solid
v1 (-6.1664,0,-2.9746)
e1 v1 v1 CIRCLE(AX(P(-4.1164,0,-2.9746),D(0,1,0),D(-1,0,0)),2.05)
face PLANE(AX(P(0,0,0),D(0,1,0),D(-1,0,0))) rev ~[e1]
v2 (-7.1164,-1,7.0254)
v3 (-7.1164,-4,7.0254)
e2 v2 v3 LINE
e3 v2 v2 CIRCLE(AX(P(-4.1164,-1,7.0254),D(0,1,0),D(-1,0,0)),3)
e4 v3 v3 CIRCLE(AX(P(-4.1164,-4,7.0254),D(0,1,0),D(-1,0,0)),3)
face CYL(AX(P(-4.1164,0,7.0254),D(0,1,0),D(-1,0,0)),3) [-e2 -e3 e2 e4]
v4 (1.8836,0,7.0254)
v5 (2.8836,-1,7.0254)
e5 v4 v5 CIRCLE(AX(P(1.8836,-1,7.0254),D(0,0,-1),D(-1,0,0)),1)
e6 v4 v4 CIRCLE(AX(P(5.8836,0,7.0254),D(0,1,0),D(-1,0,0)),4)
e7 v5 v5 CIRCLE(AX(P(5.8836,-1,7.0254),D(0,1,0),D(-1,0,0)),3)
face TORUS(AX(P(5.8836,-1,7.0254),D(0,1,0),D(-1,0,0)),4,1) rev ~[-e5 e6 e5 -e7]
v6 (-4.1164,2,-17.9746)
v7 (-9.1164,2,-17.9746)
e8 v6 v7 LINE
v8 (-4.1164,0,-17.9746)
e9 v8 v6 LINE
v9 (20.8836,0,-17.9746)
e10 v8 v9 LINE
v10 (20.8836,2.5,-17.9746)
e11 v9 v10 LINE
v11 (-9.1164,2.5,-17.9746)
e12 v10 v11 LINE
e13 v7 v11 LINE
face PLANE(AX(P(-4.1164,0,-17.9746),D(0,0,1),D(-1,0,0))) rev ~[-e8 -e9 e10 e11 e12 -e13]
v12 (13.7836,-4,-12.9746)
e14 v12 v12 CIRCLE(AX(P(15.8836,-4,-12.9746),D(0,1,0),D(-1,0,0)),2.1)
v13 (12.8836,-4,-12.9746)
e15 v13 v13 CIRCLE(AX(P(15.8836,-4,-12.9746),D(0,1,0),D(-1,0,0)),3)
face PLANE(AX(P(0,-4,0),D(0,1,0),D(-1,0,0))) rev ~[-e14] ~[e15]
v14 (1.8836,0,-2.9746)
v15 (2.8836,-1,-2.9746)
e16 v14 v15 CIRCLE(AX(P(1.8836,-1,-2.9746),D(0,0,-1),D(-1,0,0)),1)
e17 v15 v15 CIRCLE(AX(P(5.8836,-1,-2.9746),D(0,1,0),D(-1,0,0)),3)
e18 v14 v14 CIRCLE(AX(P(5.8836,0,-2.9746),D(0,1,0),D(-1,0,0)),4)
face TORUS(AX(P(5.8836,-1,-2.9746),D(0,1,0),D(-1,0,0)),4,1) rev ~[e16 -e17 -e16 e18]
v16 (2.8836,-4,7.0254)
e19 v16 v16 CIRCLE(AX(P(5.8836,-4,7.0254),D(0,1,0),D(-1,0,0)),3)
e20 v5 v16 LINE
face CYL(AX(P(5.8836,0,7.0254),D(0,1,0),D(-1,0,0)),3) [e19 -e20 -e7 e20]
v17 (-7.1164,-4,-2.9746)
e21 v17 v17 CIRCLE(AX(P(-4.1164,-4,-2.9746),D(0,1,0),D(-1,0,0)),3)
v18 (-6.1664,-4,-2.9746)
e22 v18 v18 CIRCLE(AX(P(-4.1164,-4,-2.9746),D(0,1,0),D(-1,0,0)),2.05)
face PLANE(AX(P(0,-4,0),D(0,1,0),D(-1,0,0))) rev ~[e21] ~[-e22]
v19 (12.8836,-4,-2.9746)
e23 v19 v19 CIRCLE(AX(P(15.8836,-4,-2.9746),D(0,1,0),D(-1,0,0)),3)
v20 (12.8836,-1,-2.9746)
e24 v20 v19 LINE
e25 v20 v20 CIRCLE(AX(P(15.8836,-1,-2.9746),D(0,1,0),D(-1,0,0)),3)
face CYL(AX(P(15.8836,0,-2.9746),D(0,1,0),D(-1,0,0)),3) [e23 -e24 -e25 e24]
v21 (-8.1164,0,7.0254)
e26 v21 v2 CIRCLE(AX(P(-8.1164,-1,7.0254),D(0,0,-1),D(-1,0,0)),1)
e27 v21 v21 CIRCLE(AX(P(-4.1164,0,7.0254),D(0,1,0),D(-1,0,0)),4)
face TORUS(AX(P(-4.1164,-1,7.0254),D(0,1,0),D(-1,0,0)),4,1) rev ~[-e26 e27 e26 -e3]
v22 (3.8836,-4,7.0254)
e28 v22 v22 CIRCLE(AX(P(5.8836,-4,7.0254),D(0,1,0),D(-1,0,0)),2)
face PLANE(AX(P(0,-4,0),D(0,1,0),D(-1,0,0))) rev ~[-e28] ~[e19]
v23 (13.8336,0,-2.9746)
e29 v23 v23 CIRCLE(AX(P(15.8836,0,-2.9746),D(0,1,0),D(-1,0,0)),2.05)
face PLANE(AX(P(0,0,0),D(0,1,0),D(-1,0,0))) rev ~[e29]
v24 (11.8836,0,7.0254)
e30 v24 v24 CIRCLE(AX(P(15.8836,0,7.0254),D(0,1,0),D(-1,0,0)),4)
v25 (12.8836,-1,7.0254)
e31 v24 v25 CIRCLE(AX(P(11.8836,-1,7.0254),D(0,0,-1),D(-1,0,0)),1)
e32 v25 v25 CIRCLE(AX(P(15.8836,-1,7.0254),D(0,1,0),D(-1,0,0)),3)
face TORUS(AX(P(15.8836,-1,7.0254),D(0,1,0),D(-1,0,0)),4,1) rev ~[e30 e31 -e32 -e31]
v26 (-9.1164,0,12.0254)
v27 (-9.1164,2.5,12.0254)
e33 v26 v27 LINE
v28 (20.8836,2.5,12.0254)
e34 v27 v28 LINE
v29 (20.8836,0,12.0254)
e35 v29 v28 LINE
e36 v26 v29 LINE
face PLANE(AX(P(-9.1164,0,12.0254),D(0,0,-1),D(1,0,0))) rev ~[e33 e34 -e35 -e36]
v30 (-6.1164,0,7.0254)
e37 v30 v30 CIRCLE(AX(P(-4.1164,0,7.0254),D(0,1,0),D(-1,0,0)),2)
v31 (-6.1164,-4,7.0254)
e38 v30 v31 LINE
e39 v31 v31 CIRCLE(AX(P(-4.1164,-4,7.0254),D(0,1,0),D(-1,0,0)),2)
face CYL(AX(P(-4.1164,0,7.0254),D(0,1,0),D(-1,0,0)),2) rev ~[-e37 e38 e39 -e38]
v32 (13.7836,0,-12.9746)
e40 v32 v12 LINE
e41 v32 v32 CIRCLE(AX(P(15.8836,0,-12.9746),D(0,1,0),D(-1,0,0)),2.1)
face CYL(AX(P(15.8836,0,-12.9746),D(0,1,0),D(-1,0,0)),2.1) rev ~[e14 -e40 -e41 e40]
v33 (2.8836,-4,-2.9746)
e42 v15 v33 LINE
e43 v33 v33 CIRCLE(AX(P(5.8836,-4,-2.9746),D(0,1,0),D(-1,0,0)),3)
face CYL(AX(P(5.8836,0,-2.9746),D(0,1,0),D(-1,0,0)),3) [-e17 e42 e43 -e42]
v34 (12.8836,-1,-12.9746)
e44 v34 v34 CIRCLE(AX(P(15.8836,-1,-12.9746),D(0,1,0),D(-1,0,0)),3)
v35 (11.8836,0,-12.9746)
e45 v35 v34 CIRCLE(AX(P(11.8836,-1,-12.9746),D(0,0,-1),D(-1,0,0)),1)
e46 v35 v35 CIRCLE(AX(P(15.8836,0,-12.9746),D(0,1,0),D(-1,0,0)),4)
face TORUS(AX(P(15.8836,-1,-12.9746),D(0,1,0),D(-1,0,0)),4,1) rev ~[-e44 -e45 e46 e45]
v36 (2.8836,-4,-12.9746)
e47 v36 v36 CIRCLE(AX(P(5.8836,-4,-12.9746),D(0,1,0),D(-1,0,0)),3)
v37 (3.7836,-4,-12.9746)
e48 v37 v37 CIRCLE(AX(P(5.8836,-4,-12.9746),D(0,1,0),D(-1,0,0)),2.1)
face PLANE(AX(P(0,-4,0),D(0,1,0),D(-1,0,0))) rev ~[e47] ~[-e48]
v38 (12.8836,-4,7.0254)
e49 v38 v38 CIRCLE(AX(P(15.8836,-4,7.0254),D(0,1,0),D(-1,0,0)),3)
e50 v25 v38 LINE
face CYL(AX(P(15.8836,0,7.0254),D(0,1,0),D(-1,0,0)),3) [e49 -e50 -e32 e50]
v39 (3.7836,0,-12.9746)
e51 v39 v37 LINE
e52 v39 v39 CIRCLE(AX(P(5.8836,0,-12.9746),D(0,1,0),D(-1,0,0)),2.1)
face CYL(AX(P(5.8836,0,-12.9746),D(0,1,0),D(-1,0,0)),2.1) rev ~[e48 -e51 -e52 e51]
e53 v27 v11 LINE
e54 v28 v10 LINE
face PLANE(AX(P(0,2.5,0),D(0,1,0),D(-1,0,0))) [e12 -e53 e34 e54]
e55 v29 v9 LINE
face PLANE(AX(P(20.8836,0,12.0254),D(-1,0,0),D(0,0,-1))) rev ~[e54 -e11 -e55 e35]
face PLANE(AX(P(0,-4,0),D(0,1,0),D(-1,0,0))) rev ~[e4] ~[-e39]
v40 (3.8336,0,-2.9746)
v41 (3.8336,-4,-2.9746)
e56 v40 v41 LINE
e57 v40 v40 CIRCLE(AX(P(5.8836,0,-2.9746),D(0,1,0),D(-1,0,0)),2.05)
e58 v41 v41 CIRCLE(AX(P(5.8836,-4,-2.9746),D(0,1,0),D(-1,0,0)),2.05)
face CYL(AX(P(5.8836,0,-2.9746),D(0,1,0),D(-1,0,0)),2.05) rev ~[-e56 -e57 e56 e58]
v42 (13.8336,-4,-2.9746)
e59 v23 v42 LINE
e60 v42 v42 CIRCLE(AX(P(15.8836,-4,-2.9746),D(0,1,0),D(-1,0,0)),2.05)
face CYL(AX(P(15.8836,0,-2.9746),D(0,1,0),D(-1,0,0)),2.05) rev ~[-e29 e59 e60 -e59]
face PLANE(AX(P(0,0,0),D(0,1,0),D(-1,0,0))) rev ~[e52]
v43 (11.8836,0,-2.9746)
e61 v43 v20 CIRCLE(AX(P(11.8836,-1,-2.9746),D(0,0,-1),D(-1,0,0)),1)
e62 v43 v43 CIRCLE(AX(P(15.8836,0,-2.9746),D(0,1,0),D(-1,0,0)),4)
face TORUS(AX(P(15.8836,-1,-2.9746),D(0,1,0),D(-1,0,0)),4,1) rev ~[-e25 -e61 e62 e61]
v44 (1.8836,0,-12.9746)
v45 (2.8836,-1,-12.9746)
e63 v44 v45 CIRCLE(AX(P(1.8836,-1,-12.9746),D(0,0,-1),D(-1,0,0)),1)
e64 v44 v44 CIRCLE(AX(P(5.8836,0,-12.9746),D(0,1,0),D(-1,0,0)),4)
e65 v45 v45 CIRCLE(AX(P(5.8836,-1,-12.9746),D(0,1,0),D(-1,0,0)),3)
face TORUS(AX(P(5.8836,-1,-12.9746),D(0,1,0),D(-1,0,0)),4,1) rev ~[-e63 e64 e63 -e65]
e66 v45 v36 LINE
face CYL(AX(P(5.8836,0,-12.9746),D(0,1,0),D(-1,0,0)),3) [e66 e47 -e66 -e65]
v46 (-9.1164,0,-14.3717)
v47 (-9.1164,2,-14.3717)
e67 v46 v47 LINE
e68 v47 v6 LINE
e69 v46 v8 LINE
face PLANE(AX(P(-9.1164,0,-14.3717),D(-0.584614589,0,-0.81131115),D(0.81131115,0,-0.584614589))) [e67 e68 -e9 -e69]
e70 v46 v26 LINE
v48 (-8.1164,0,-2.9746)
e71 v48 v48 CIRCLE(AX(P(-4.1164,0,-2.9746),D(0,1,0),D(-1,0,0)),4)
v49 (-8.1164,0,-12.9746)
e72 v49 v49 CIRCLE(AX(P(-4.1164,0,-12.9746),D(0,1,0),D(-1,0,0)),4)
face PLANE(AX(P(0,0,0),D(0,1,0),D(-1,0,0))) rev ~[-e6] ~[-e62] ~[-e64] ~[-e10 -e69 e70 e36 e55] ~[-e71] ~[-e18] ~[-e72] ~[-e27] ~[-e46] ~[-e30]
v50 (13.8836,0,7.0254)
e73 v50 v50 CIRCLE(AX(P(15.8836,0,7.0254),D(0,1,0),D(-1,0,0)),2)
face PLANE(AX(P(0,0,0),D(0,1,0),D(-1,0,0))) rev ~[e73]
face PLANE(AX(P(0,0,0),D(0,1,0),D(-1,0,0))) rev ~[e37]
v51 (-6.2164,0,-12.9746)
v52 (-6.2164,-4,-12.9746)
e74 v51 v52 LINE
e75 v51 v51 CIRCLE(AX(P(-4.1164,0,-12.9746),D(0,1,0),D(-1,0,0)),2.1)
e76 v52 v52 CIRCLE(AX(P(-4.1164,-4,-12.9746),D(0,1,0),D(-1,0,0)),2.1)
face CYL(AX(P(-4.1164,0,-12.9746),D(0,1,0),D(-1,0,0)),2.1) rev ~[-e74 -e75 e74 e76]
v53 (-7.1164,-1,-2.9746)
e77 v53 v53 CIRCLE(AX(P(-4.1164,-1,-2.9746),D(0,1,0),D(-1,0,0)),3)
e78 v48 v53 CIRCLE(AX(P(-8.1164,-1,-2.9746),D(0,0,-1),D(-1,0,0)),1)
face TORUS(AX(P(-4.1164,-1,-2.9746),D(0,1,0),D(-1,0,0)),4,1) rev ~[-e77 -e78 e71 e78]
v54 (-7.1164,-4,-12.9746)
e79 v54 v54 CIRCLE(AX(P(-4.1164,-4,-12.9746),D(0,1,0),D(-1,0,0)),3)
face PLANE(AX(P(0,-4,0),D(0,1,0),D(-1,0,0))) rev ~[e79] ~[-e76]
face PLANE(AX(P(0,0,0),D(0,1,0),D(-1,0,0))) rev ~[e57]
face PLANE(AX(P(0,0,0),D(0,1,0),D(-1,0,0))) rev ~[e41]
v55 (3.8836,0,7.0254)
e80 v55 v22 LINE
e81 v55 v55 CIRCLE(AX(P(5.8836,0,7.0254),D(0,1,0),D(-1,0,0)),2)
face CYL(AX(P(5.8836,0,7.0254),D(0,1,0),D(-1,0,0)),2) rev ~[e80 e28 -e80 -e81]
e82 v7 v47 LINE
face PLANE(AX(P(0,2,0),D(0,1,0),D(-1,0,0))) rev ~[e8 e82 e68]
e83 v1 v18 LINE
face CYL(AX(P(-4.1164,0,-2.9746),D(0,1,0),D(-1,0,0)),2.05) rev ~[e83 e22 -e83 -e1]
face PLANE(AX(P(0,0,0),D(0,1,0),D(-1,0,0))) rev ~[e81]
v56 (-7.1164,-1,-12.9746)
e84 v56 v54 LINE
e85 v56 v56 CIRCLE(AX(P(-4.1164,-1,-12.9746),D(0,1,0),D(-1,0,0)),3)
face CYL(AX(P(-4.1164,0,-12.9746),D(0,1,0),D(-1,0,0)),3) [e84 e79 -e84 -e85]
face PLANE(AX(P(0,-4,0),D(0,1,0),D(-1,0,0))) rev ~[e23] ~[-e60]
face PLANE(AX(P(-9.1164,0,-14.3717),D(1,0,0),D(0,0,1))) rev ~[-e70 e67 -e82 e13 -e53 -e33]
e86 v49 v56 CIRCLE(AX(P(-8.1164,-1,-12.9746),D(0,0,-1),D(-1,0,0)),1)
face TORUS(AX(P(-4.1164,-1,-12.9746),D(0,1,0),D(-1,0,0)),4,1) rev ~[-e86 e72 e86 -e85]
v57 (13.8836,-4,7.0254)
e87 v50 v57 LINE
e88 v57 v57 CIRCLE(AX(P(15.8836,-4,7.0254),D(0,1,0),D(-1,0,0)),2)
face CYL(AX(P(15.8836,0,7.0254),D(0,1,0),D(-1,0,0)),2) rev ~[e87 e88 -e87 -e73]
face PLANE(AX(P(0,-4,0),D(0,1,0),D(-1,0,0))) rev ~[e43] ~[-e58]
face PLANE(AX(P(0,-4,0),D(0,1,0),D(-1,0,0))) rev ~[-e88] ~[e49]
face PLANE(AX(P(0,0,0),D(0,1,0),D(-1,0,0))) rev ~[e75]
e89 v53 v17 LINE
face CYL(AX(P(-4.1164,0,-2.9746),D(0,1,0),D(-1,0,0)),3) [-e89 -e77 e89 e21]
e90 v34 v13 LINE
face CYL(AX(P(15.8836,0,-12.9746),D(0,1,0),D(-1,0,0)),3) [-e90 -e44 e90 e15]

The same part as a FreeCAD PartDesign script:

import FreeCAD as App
import Part
import Sketcher
from FreeCAD import Vector
Q = App.Units.Quantity


def edges_at(feature, points):
    """Names of the edges that pass closest to the given points."""
    edges = feature.Shape.Edges
    near = lambda p: min(range(len(edges)), key=lambda i: edges[i].distToShape(Part.Vertex(*p))[0])
    return sorted({f"Edge{near(p) + 1}" for p in points})

doc = App.newDocument("Part")
body = doc.addObject("PartDesign::Body", "Body")

# Sketch on XZ plane
sketch1 = doc.addObject("Sketcher::SketchObject", "Sketch")
body.addObject(sketch1)
sketch1.AttachmentSupport = (doc.XZ_Plane, [""])
sketch1.MapMode = "FlatFace"
sketch1.addGeometry([
    Part.LineSegment(Vector(-9, 12, 0), Vector(21, 12, 0)),
    Part.LineSegment(Vector(21, 12, 0), Vector(21, -18, 0)),
    Part.LineSegment(Vector(21, -18, 0), Vector(-9, -18, 0)),
    Part.LineSegment(Vector(-9, -18, 0), Vector(-9, 12, 0)),
], False)
sketch1.addConstraint([
    Sketcher.Constraint("Coincident", 0, 2, 1, 1),
    Sketcher.Constraint("Coincident", 1, 2, 2, 1),
    Sketcher.Constraint("Coincident", 2, 2, 3, 1),
    Sketcher.Constraint("Coincident", 3, 2, 0, 1),
    Sketcher.Constraint("Horizontal", 0),
    Sketcher.Constraint("Vertical", 1),
    Sketcher.Constraint("Horizontal", 2),
    Sketcher.Constraint("Vertical", 3),
    Sketcher.Constraint("Equal", 2, 1),
    Sketcher.Constraint("DistanceX", 0, 1, 0, 2, Q("30 mm")),
    Sketcher.Constraint("DistanceX", -1, 1, 0, 2, Q("20.8836 mm")),
    Sketcher.Constraint("DistanceY", -1, 1, 0, 2, Q("12.0254 mm")),
])
pad1 = doc.addObject("PartDesign::Pad", "Pad")
body.addObject(pad1)
pad1.Profile = sketch1
pad1.Length = 2.5
pad1.Reversed = True

# Sketch on XZ plane
sketch2 = doc.addObject("Sketcher::SketchObject", "Sketch001")
body.addObject(sketch2)
sketch2.AttachmentSupport = (doc.XZ_Plane, [""])
sketch2.MapMode = "FlatFace"
sketch2.addGeometry([
    Part.Circle(Vector(-4.1, 7, 0), Vector(0, 0, 1), 3),  # 0
    Part.Circle(Vector(-4.1, 7, 0), Vector(0, 0, 1), 2),  # 1
    Part.Circle(Vector(-4.1, -3, 0), Vector(0, 0, 1), 3),  # 2
    Part.Circle(Vector(-4.1, -3, 0), Vector(0, 0, 1), 2),  # 3
    Part.Circle(Vector(-4.1, -13, 0), Vector(0, 0, 1), 3),  # 4
    Part.Circle(Vector(-4.1, -13, 0), Vector(0, 0, 1), 2.1),  # 5
    Part.Circle(Vector(5.9, 7, 0), Vector(0, 0, 1), 3),  # 6
    Part.Circle(Vector(5.9, 7, 0), Vector(0, 0, 1), 2),  # 7
    Part.Circle(Vector(5.9, -3, 0), Vector(0, 0, 1), 3),  # 8
    Part.Circle(Vector(5.9, -3, 0), Vector(0, 0, 1), 2),  # 9
    Part.Circle(Vector(5.9, -13, 0), Vector(0, 0, 1), 3),  # 10
    Part.Circle(Vector(5.9, -13, 0), Vector(0, 0, 1), 2.1),  # 11
    Part.Circle(Vector(15.9, 7, 0), Vector(0, 0, 1), 3),  # 12
    Part.Circle(Vector(15.9, 7, 0), Vector(0, 0, 1), 2),  # 13
    Part.Circle(Vector(15.9, -3, 0), Vector(0, 0, 1), 3),  # 14
    Part.Circle(Vector(15.9, -3, 0), Vector(0, 0, 1), 2),  # 15
    Part.Circle(Vector(15.9, -13, 0), Vector(0, 0, 1), 3),  # 16
    Part.Circle(Vector(15.9, -13, 0), Vector(0, 0, 1), 2.1),  # 17
], False)
sketch2.addConstraint([
    Sketcher.Constraint("Coincident", 1, 3, 0, 3),
    Sketcher.Constraint("Coincident", 3, 3, 2, 3),
    Sketcher.Constraint("Coincident", 5, 3, 4, 3),
    Sketcher.Constraint("Coincident", 7, 3, 6, 3),
    Sketcher.Constraint("Coincident", 9, 3, 8, 3),
    Sketcher.Constraint("Coincident", 11, 3, 10, 3),
    Sketcher.Constraint("Coincident", 13, 3, 12, 3),
    Sketcher.Constraint("Coincident", 15, 3, 14, 3),
    Sketcher.Constraint("Coincident", 17, 3, 16, 3),
    Sketcher.Constraint("Equal", 0, 2),
    Sketcher.Constraint("Equal", 2, 4),
    Sketcher.Constraint("Equal", 4, 6),
    Sketcher.Constraint("Equal", 1, 7),
    Sketcher.Constraint("Equal", 6, 8),
    Sketcher.Constraint("Equal", 3, 9),
    Sketcher.Constraint("Equal", 8, 10),
    Sketcher.Constraint("Equal", 5, 11),
    Sketcher.Constraint("Equal", 10, 12),
    Sketcher.Constraint("Equal", 7, 13),
    Sketcher.Constraint("Equal", 12, 14),
    Sketcher.Constraint("Equal", 9, 15),
    Sketcher.Constraint("Equal", 14, 16),
    Sketcher.Constraint("Equal", 11, 17),
    Sketcher.Constraint("Horizontal", 1, 3, 6, 3),
    Sketcher.Constraint("Horizontal", 3, 3, 8, 3),
    Sketcher.Constraint("Horizontal", 5, 3, 10, 3),
    Sketcher.Constraint("Horizontal", 7, 3, 12, 3),
    Sketcher.Constraint("Horizontal", 9, 3, 14, 3),
    Sketcher.Constraint("Horizontal", 11, 3, 16, 3),
    Sketcher.Constraint("Vertical", 1, 3, 2, 3),
    Sketcher.Constraint("Vertical", 3, 3, 4, 3),
    Sketcher.Constraint("Vertical", 7, 3, 8, 3),
    Sketcher.Constraint("Vertical", 9, 3, 10, 3),
    Sketcher.Constraint("Vertical", 13, 3, 14, 3),
    Sketcher.Constraint("Vertical", 15, 3, 16, 3),
    Sketcher.Constraint("Diameter", 0, Q("6 mm")),
    Sketcher.Constraint("Diameter", 1, Q("4 mm")),
    Sketcher.Constraint("Diameter", 3, Q("4.1 mm")),
    Sketcher.Constraint("Diameter", 5, Q("4.2 mm")),
    Sketcher.Constraint("DistanceY", 2, 3, 0, 3, Q("10 mm")),
    Sketcher.Constraint("DistanceY", 4, 3, 2, 3, Q("10 mm")),
    Sketcher.Constraint("DistanceX", 0, 3, 6, 3, Q("10 mm")),
    Sketcher.Constraint("DistanceX", 6, 3, 12, 3, Q("10 mm")),
    Sketcher.Constraint("DistanceX", 0, 3, -1, 1, Q("4.1164 mm")),
    Sketcher.Constraint("DistanceY", -1, 1, 0, 3, Q("7.0254 mm")),
])
pad2 = doc.addObject("PartDesign::Pad", "Pad001")
body.addObject(pad2)
pad2.Profile = sketch2
pad2.Length = 4
doc.recompute()

fillet = doc.addObject("PartDesign::Fillet", "Fillet")
body.addObject(fillet)
fillet.Base = (pad2, edges_at(pad2, [
    (-1.116, 0, 7.025),
    (-1.116, 0, -2.975),
    (-1.116, 0, -12.975),
    (8.884, 0, -12.975),
    (8.884, 0, -2.975),
    (8.884, 0, 7.025),
    (18.884, 0, 7.025),
    (18.884, 0, -2.975),
    (18.884, 0, -12.975),
]))
fillet.Radius = 1

# Sketch on XZ plane
sketch3 = doc.addObject("Sketcher::SketchObject", "Sketch002")
body.addObject(sketch3)
sketch3.AttachmentSupport = (doc.XZ_Plane, [""])
sketch3.MapMode = "FlatFace"
sketch3.addGeometry([
    Part.LineSegment(Vector(-9.1, -18, 0), Vector(-9.1, -14.4, 0)),
    Part.LineSegment(Vector(-9.1, -14.4, 0), Vector(-4.1, -18, 0)),
    Part.LineSegment(Vector(-4.1, -18, 0), Vector(-9.1, -18, 0)),
], False)
sketch3.addConstraint([
    Sketcher.Constraint("Coincident", 0, 2, 1, 1),
    Sketcher.Constraint("Coincident", 1, 2, 2, 1),
    Sketcher.Constraint("Coincident", 2, 2, 0, 1),
    Sketcher.Constraint("Vertical", 0),
    Sketcher.Constraint("Horizontal", 2),
    Sketcher.Constraint("DistanceX", 2, 2, 2, 1, Q("5 mm")),
    Sketcher.Constraint("DistanceY", 0, 1, 0, 2, Q("3.603 mm")),
    Sketcher.Constraint("DistanceX", 0, 2, -1, 1, Q("9.1164 mm")),
    Sketcher.Constraint("DistanceY", 0, 2, -1, 1, Q("14.3717 mm")),
])
pocket1 = doc.addObject("PartDesign::Pocket", "Pocket")
body.addObject(pocket1)
pocket1.Profile = sketch3
pocket1.Length = 2

doc.recompute()
